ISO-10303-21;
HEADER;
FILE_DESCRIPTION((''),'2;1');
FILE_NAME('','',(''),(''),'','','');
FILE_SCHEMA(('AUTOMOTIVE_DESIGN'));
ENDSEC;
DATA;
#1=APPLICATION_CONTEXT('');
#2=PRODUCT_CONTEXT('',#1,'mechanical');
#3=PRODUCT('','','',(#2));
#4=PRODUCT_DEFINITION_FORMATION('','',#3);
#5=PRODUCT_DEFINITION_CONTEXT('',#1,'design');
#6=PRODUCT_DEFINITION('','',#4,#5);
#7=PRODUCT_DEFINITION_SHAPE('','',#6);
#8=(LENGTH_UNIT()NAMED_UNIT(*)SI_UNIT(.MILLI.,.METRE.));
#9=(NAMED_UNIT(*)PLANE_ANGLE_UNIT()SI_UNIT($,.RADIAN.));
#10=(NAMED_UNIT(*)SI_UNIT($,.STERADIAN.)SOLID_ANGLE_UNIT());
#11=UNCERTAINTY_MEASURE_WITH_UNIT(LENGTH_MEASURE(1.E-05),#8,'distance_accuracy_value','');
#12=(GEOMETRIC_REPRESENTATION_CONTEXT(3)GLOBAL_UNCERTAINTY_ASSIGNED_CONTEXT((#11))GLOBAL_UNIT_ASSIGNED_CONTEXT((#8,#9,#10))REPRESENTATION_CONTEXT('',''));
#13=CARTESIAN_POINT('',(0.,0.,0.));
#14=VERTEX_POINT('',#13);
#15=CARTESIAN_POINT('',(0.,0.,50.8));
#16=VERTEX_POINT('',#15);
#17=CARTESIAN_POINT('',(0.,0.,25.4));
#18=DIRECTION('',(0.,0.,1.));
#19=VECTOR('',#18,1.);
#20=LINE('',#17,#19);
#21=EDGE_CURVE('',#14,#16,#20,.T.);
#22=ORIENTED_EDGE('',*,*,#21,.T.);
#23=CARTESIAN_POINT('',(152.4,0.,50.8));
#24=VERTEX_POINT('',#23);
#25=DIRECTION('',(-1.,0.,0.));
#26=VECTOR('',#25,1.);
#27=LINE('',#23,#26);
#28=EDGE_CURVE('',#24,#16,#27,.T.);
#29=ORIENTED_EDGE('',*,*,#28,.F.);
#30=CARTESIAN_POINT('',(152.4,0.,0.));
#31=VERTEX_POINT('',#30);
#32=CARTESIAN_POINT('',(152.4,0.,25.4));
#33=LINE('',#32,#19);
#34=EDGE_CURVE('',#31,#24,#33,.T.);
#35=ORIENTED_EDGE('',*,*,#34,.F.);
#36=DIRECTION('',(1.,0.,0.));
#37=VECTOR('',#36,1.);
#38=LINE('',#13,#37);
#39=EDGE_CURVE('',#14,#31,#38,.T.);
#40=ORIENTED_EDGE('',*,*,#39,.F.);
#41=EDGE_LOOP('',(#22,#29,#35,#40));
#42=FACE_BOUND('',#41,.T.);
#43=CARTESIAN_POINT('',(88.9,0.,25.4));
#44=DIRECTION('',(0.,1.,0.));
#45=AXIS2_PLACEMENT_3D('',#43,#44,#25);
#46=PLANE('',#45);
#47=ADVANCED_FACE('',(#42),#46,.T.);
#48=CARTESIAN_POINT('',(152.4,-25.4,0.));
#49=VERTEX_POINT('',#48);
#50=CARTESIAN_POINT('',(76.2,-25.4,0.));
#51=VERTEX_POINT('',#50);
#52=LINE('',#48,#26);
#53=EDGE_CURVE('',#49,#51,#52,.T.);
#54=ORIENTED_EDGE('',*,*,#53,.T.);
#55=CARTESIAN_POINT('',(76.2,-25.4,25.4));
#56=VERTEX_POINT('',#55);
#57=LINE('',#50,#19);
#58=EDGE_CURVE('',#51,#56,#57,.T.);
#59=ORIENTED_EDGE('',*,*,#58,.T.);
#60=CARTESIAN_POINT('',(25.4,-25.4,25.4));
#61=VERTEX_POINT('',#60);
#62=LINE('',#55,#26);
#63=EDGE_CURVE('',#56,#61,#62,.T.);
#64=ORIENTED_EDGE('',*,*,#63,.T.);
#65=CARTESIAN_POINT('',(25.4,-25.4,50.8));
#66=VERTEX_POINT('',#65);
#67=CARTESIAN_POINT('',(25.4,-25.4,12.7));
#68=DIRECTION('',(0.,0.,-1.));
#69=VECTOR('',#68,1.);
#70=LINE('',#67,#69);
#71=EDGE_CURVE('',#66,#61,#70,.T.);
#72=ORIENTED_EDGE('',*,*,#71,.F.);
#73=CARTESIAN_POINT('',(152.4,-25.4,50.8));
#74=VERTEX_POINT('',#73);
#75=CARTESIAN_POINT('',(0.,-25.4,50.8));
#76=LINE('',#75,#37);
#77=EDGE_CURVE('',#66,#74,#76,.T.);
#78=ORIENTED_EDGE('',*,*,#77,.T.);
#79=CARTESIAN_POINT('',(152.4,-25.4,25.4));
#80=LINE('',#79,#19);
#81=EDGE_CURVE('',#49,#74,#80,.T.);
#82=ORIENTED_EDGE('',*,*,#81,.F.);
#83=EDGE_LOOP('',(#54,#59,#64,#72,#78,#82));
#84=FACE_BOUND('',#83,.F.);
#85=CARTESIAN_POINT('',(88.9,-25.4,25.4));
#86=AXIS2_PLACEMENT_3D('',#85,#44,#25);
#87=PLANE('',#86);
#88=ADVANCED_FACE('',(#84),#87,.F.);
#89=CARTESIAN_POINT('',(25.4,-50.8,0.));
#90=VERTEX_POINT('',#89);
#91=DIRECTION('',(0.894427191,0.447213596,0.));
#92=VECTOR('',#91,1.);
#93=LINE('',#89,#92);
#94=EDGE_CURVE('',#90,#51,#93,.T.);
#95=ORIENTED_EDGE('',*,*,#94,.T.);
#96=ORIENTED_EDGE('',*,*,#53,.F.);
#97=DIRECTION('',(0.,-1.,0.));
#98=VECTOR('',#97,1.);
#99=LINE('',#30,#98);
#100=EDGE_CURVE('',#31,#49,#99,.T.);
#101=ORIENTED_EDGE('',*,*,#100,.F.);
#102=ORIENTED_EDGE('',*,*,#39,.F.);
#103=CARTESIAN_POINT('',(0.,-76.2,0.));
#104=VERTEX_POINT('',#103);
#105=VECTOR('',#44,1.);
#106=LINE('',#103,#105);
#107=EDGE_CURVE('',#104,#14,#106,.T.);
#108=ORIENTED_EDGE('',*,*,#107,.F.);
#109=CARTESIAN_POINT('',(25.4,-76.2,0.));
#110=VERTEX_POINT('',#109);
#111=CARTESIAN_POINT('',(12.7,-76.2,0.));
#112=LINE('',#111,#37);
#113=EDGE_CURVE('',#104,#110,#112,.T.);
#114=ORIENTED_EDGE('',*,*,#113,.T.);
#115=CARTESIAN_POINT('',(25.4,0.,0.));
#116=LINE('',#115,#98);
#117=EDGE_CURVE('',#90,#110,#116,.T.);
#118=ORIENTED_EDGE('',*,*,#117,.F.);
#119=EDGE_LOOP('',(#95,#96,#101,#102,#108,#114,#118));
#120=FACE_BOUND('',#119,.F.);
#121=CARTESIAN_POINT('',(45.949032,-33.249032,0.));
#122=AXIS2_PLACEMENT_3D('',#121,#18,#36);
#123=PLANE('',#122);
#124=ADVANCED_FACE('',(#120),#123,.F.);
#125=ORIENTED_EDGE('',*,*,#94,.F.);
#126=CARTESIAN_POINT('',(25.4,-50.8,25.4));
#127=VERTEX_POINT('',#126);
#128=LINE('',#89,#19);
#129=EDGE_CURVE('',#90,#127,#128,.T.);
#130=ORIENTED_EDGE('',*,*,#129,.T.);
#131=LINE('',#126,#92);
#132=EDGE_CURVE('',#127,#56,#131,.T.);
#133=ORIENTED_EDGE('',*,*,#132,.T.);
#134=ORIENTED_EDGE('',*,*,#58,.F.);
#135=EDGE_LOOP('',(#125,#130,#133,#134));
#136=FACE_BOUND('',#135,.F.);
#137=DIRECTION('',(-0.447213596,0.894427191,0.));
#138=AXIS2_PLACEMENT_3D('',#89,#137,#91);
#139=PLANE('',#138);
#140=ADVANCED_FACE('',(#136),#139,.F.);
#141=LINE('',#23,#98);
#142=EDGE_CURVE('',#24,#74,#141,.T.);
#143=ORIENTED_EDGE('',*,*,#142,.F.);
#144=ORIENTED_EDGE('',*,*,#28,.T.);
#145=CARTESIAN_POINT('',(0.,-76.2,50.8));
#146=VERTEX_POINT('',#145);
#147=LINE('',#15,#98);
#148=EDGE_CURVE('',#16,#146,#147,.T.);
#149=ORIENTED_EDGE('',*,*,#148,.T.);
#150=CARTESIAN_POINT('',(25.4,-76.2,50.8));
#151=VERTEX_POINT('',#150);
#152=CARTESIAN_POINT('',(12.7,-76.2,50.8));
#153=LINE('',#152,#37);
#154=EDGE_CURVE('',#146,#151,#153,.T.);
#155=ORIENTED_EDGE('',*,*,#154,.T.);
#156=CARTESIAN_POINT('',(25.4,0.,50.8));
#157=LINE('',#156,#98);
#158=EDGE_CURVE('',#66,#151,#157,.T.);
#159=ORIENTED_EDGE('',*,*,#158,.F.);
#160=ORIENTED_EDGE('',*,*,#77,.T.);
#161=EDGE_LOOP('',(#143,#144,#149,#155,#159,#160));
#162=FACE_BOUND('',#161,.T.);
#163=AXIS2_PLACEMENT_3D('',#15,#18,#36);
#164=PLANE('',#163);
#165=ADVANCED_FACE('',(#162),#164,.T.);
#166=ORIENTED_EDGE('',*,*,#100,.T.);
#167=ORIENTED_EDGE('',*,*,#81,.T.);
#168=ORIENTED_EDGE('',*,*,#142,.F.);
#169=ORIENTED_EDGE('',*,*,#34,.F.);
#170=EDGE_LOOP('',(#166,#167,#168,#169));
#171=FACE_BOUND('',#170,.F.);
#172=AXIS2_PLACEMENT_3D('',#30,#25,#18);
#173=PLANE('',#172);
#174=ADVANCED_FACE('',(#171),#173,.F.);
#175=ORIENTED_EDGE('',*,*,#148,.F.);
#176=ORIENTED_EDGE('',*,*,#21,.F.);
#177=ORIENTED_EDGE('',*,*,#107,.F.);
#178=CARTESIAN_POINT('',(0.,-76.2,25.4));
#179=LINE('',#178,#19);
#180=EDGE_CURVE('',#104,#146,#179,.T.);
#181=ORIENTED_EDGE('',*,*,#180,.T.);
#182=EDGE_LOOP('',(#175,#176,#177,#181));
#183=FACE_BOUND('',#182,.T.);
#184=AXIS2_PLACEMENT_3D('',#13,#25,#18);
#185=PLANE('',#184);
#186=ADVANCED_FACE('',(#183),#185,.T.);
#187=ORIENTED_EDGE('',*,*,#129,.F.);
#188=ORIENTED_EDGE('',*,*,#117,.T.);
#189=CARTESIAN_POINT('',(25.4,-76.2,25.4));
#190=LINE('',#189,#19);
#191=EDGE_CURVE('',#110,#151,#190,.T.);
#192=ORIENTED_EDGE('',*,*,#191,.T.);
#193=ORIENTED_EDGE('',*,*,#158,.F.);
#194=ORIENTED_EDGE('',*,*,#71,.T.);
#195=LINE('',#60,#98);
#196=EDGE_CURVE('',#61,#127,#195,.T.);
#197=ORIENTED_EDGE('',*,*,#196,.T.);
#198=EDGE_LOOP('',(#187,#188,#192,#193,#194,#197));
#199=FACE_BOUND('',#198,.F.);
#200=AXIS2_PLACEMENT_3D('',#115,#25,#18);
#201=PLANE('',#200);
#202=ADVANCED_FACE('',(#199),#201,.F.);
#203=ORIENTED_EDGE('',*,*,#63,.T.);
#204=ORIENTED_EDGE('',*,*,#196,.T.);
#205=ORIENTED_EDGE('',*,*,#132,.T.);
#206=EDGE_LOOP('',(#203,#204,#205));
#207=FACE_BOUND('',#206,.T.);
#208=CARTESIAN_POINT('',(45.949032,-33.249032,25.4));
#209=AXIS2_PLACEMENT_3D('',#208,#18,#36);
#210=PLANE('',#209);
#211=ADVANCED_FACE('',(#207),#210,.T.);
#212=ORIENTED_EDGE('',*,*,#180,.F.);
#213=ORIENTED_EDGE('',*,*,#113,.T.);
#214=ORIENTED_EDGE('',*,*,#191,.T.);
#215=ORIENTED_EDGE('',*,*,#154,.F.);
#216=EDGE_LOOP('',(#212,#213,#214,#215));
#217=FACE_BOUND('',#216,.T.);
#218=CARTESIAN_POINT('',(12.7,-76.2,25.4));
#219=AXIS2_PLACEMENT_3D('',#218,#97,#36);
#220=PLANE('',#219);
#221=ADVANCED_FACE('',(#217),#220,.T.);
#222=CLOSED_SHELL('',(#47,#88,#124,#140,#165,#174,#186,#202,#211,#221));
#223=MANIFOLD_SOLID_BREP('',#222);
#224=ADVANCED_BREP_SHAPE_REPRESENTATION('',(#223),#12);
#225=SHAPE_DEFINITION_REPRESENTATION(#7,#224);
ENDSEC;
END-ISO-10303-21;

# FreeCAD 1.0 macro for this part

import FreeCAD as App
import Part
import Sketcher
from FreeCAD import Vector
Q = App.Units.Quantity


def add_polygon(sketch, points):
    """Adds a closed chain of lines whose ends are joined by coincident constraints."""
    first, n = sketch.GeometryCount, len(points)
    for a, b in zip(points, points[1:] + points[:1]):
        sketch.addGeometry(Part.LineSegment(App.Vector(*a, 0), App.Vector(*b, 0)), False)
    for i in range(n):
        sketch.addConstraint(Sketcher.Constraint("Coincident", first + i, 2, first + (i + 1) % n, 1))

doc = App.newDocument("Part")
body = doc.addObject("PartDesign::Body", "Body")

# Sketch on XZ plane
sketch1 = body.newObject("Sketcher::SketchObject", "Sketch")
sketch1.AttachmentSupport = (doc.getObject("XZ_Plane"), [""])
sketch1.MapMode = "FlatFace"
add_polygon(sketch1, [(0, 51), (0, 0), (25, 0), (25, 51)])  # lines 0-3
sketch1.addConstraint(Sketcher.Constraint("Vertical", 0))
sketch1.addConstraint(Sketcher.Constraint("Horizontal", 1))
sketch1.addConstraint(Sketcher.Constraint("Vertical", 2))
sketch1.addConstraint(Sketcher.Constraint("Horizontal", 3))
sketch1.addConstraint(Sketcher.Constraint("Coincident", 0, 2, -1, 1))
sketch1.addConstraint(Sketcher.Constraint("DistanceX", 1, 1, 1, 2, Q("1 in")))
sketch1.addConstraint(Sketcher.Constraint("DistanceY", 0, 2, 0, 1, Q("2 in")))
pad1 = body.newObject("PartDesign::Pad", "Pad")
pad1.Profile = sketch1
pad1.Length = Q("3 in")

# Sketch on XZ plane
sketch2 = body.newObject("Sketcher::SketchObject", "Sketch001")
sketch2.AttachmentSupport = (doc.getObject("XZ_Plane"), [""])
sketch2.MapMode = "FlatFace"
add_polygon(sketch2, [(152, 51), (152, 0), (0, 0), (0, 51)])  # lines 0-3
sketch2.addConstraint(Sketcher.Constraint("Vertical", 0))
sketch2.addConstraint(Sketcher.Constraint("Horizontal", 1))
sketch2.addConstraint(Sketcher.Constraint("Vertical", 2))
sketch2.addConstraint(Sketcher.Constraint("Horizontal", 3))
sketch2.addConstraint(Sketcher.Constraint("Coincident", 1, 2, -1, 1))
sketch2.addConstraint(Sketcher.Constraint("DistanceX", 1, 2, 1, 1, Q("6 in")))
sketch2.addConstraint(Sketcher.Constraint("DistanceY", 0, 2, 0, 1, Q("2 in")))
pad2 = body.newObject("PartDesign::Pad", "Pad001")
pad2.Profile = sketch2
pad2.Length = Q("1 in")

# Sketch on XY plane
sketch3 = body.newObject("Sketcher::SketchObject", "Sketch002")
sketch3.AttachmentSupport = (doc.getObject("XY_Plane"), [""])
sketch3.MapMode = "FlatFace"
add_polygon(sketch3, [(76, -25), (25, -25), (25, -51)])  # lines 0-2
sketch3.addConstraint(Sketcher.Constraint("Horizontal", 0))
sketch3.addConstraint(Sketcher.Constraint("Vertical", 1))
sketch3.addConstraint(Sketcher.Constraint("DistanceX", 0, 2, 0, 1, Q("2 in")))
sketch3.addConstraint(Sketcher.Constraint("DistanceY", 1, 2, 1, 1, Q("1 in")))
sketch3.addConstraint(Sketcher.Constraint("DistanceX", -1, 1, 0, 2, Q("1 in")))
sketch3.addConstraint(Sketcher.Constraint("DistanceY", 0, 2, -1, 1, Q("1 in")))
pad3 = body.newObject("PartDesign::Pad", "Pad002")
pad3.Profile = sketch3
pad3.Length = Q("1 in")

doc.recompute()
